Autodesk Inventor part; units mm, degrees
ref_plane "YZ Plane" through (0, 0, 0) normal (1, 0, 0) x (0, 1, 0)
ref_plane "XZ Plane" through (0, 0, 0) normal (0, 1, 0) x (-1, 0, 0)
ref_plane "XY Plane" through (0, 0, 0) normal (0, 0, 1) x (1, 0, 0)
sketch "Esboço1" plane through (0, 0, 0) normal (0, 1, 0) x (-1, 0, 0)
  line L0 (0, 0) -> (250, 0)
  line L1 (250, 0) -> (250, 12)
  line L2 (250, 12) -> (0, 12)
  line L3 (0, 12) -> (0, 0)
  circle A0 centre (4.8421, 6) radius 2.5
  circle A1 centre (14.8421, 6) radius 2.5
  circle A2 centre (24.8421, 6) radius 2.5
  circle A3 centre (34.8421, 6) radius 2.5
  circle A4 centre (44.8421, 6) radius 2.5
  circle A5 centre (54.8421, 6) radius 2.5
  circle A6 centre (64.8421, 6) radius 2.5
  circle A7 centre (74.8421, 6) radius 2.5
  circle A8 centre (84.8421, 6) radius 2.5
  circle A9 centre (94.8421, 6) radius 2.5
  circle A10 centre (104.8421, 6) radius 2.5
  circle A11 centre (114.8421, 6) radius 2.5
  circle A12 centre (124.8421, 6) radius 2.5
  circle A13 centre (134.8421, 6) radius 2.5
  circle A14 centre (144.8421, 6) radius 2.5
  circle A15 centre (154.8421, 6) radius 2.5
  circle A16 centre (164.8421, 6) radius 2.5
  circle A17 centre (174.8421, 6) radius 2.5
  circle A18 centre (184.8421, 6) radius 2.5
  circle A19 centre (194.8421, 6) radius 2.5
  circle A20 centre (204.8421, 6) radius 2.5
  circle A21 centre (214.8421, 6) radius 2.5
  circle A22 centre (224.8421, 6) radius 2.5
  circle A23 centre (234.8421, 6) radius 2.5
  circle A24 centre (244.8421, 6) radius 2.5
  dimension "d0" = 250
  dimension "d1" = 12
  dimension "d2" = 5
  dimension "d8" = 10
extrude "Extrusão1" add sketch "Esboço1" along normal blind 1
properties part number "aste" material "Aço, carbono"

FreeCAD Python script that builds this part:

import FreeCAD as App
import Part
import Sketcher

doc = App.newDocument("Part")
params = doc.addObject("Spreadsheet::Sheet", "Params")
for row, (alias, value) in enumerate([
    ("sketch1_diameter", "5 mm"),
    ("sketch1_width", "250 mm"),
    ("sketch1_height", "12 mm"),
    ("pad1_length", "1 mm"),
], start=1):
    params.set(f"A{row}", alias)
    params.set(f"B{row}", "=" + value)
    params.setAlias(f"B{row}", alias)

body = doc.addObject("PartDesign::Body", "Body")

# Sketch on XZ plane
sketch1 = doc.addObject("Sketcher::SketchObject", "Sketch")
body.addObject(sketch1)
sketch1.AttachmentSupport = (doc.XZ_Plane, [""])
sketch1.MapMode = "FlatFace"
sketch1.addGeometry(Part.LineSegment(App.Vector(0, 12, 0), App.Vector(0, 0, 0)), False)
sketch1.addGeometry(Part.LineSegment(App.Vector(0, 0, 0), App.Vector(-250, 0, 0)), False)
sketch1.addGeometry(Part.LineSegment(App.Vector(-250, 0, 0), App.Vector(-250, 12, 0)), False)
sketch1.addGeometry(Part.LineSegment(App.Vector(-250, 12, 0), App.Vector(0, 12, 0)), False)
sketch1.addGeometry(Part.Circle(App.Vector(-4.8, 6, 0), App.Vector(0, 0, 1), 2.5), False)
sketch1.addGeometry(Part.Circle(App.Vector(-14.8, 6, 0), App.Vector(0, 0, 1), 2.5), False)
sketch1.addGeometry(Part.Circle(App.Vector(-24.8, 6, 0), App.Vector(0, 0, 1), 2.5), False)
sketch1.addGeometry(Part.Circle(App.Vector(-34.8, 6, 0), App.Vector(0, 0, 1), 2.5), False)
sketch1.addGeometry(Part.Circle(App.Vector(-44.8, 6, 0), App.Vector(0, 0, 1), 2.5), False)
sketch1.addGeometry(Part.Circle(App.Vector(-54.8, 6, 0), App.Vector(0, 0, 1), 2.5), False)
sketch1.addGeometry(Part.Circle(App.Vector(-64.8, 6, 0), App.Vector(0, 0, 1), 2.5), False)
sketch1.addGeometry(Part.Circle(App.Vector(-74.8, 6, 0), App.Vector(0, 0, 1), 2.5), False)
sketch1.addGeometry(Part.Circle(App.Vector(-84.8, 6, 0), App.Vector(0, 0, 1), 2.5), False)
sketch1.addGeometry(Part.Circle(App.Vector(-94.8, 6, 0), App.Vector(0, 0, 1), 2.5), False)
sketch1.addGeometry(Part.Circle(App.Vector(-104.8, 6, 0), App.Vector(0, 0, 1), 2.5), False)
sketch1.addGeometry(Part.Circle(App.Vector(-114.8, 6, 0), App.Vector(0, 0, 1), 2.5), False)
sketch1.addGeometry(Part.Circle(App.Vector(-124.8, 6, 0), App.Vector(0, 0, 1), 2.5), False)
sketch1.addGeometry(Part.Circle(App.Vector(-134.8, 6, 0), App.Vector(0, 0, 1), 2.5), False)
sketch1.addGeometry(Part.Circle(App.Vector(-144.8, 6, 0), App.Vector(0, 0, 1), 2.5), False)
sketch1.addGeometry(Part.Circle(App.Vector(-154.8, 6, 0), App.Vector(0, 0, 1), 2.5), False)
sketch1.addGeometry(Part.Circle(App.Vector(-164.8, 6, 0), App.Vector(0, 0, 1), 2.5), False)
sketch1.addGeometry(Part.Circle(App.Vector(-174.8, 6, 0), App.Vector(0, 0, 1), 2.5), False)
sketch1.addGeometry(Part.Circle(App.Vector(-184.8, 6, 0), App.Vector(0, 0, 1), 2.5), False)
sketch1.addGeometry(Part.Circle(App.Vector(-194.8, 6, 0), App.Vector(0, 0, 1), 2.5), False)
sketch1.addGeometry(Part.Circle(App.Vector(-204.8, 6, 0), App.Vector(0, 0, 1), 2.5), False)
sketch1.addGeometry(Part.Circle(App.Vector(-214.8, 6, 0), App.Vector(0, 0, 1), 2.5), False)
sketch1.addGeometry(Part.Circle(App.Vector(-224.8, 6, 0), App.Vector(0, 0, 1), 2.5), False)
sketch1.addGeometry(Part.Circle(App.Vector(-234.8, 6, 0), App.Vector(0, 0, 1), 2.5), False)
sketch1.addGeometry(Part.Circle(App.Vector(-244.8, 6, 0), App.Vector(0, 0, 1), 2.5), False)
sketch1.addConstraint(Sketcher.Constraint("Coincident", 0, 2, 1, 1))
sketch1.addConstraint(Sketcher.Constraint("Coincident", 1, 2, 2, 1))
sketch1.addConstraint(Sketcher.Constraint("Coincident", 2, 2, 3, 1))
sketch1.addConstraint(Sketcher.Constraint("Coincident", 3, 2, 0, 1))
sketch1.addConstraint(Sketcher.Constraint("Vertical", 0))
sketch1.addConstraint(Sketcher.Constraint("Horizontal", 1))
sketch1.addConstraint(Sketcher.Constraint("Vertical", 2))
sketch1.addConstraint(Sketcher.Constraint("Horizontal", 3))
sketch1.addConstraint(Sketcher.Constraint("Coincident", 0, 2, -1, 1))
sketch1.addConstraint(Sketcher.Constraint("Equal", 4, 5))
sketch1.addConstraint(Sketcher.Constraint("Equal", 5, 6))
sketch1.addConstraint(Sketcher.Constraint("Equal", 6, 7))
sketch1.addConstraint(Sketcher.Constraint("Equal", 7, 8))
sketch1.addConstraint(Sketcher.Constraint("Equal", 8, 9))
sketch1.addConstraint(Sketcher.Constraint("Equal", 9, 10))
sketch1.addConstraint(Sketcher.Constraint("Equal", 10, 11))
sketch1.addConstraint(Sketcher.Constraint("Equal", 11, 12))
sketch1.addConstraint(Sketcher.Constraint("Equal", 12, 13))
sketch1.addConstraint(Sketcher.Constraint("Equal", 13, 14))
sketch1.addConstraint(Sketcher.Constraint("Equal", 14, 15))
sketch1.addConstraint(Sketcher.Constraint("Equal", 15, 16))
sketch1.addConstraint(Sketcher.Constraint("Equal", 16, 17))
sketch1.addConstraint(Sketcher.Constraint("Equal", 17, 18))
sketch1.addConstraint(Sketcher.Constraint("Equal", 18, 19))
sketch1.addConstraint(Sketcher.Constraint("Equal", 19, 20))
sketch1.addConstraint(Sketcher.Constraint("Equal", 20, 21))
sketch1.addConstraint(Sketcher.Constraint("Equal", 21, 22))
sketch1.addConstraint(Sketcher.Constraint("Equal", 22, 23))
sketch1.addConstraint(Sketcher.Constraint("Equal", 23, 24))
sketch1.addConstraint(Sketcher.Constraint("Equal", 24, 25))
sketch1.addConstraint(Sketcher.Constraint("Equal", 25, 26))
sketch1.addConstraint(Sketcher.Constraint("Equal", 26, 27))
sketch1.addConstraint(Sketcher.Constraint("Equal", 27, 28))
sketch1.addConstraint(Sketcher.Constraint("Horizontal", 4, 3, 5, 3))
sketch1.addConstraint(Sketcher.Constraint("Horizontal", 5, 3, 6, 3))
sketch1.addConstraint(Sketcher.Constraint("Horizontal", 6, 3, 7, 3))
sketch1.addConstraint(Sketcher.Constraint("Horizontal", 7, 3, 8, 3))
sketch1.addConstraint(Sketcher.Constraint("Horizontal", 8, 3, 9, 3))
sketch1.addConstraint(Sketcher.Constraint("Horizontal", 9, 3, 10, 3))
sketch1.addConstraint(Sketcher.Constraint("Horizontal", 10, 3, 11, 3))
sketch1.addConstraint(Sketcher.Constraint("Horizontal", 11, 3, 12, 3))
sketch1.addConstraint(Sketcher.Constraint("Horizontal", 12, 3, 13, 3))
sketch1.addConstraint(Sketcher.Constraint("Horizontal", 13, 3, 14, 3))
sketch1.addConstraint(Sketcher.Constraint("Horizontal", 14, 3, 15, 3))
sketch1.addConstraint(Sketcher.Constraint("Horizontal", 15, 3, 16, 3))
sketch1.addConstraint(Sketcher.Constraint("Horizontal", 16, 3, 17, 3))
sketch1.addConstraint(Sketcher.Constraint("Horizontal", 17, 3, 18, 3))
sketch1.addConstraint(Sketcher.Constraint("Horizontal", 18, 3, 19, 3))
sketch1.addConstraint(Sketcher.Constraint("Horizontal", 19, 3, 20, 3))
sketch1.addConstraint(Sketcher.Constraint("Horizontal", 20, 3, 21, 3))
sketch1.addConstraint(Sketcher.Constraint("Horizontal", 21, 3, 22, 3))
sketch1.addConstraint(Sketcher.Constraint("Horizontal", 22, 3, 23, 3))
sketch1.addConstraint(Sketcher.Constraint("Horizontal", 23, 3, 24, 3))
sketch1.addConstraint(Sketcher.Constraint("Horizontal", 24, 3, 25, 3))
sketch1.addConstraint(Sketcher.Constraint("Horizontal", 25, 3, 26, 3))
sketch1.addConstraint(Sketcher.Constraint("Horizontal", 26, 3, 27, 3))
sketch1.addConstraint(Sketcher.Constraint("Horizontal", 27, 3, 28, 3))
sketch1.addConstraint(Sketcher.Constraint("Diameter", 4, 5.0))
sketch1.addConstraint(Sketcher.Constraint("DistanceX", 1, 2, 1, 1, 250.0))
sketch1.addConstraint(Sketcher.Constraint("DistanceY", 0, 2, 0, 1, 12.0))
sketch1.addConstraint(Sketcher.Constraint("DistanceX", 5, 3, 4, 3, 10.0))
sketch1.addConstraint(Sketcher.Constraint("DistanceX", 6, 3, 5, 3, 10.0))
sketch1.addConstraint(Sketcher.Constraint("DistanceX", 7, 3, 6, 3, 10.0))
sketch1.addConstraint(Sketcher.Constraint("DistanceX", 8, 3, 7, 3, 10.0))
sketch1.addConstraint(Sketcher.Constraint("DistanceX", 9, 3, 8, 3, 10.0))
sketch1.addConstraint(Sketcher.Constraint("DistanceX", 10, 3, 9, 3, 10.0))
sketch1.addConstraint(Sketcher.Constraint("DistanceX", 11, 3, 10, 3, 10.0))
sketch1.addConstraint(Sketcher.Constraint("DistanceX", 12, 3, 11, 3, 10.0))
sketch1.addConstraint(Sketcher.Constraint("DistanceX", 13, 3, 12, 3, 10.0))
sketch1.addConstraint(Sketcher.Constraint("DistanceX", 14, 3, 13, 3, 10.0))
sketch1.addConstraint(Sketcher.Constraint("DistanceX", 15, 3, 14, 3, 10.0))
sketch1.addConstraint(Sketcher.Constraint("DistanceX", 16, 3, 15, 3, 10.0))
sketch1.addConstraint(Sketcher.Constraint("DistanceX", 17, 3, 16, 3, 10.0))
sketch1.addConstraint(Sketcher.Constraint("DistanceX", 18, 3, 17, 3, 10.0))
sketch1.addConstraint(Sketcher.Constraint("DistanceX", 19, 3, 18, 3, 10.0))
sketch1.addConstraint(Sketcher.Constraint("DistanceX", 20, 3, 19, 3, 10.0))
sketch1.addConstraint(Sketcher.Constraint("DistanceX", 21, 3, 20, 3, 10.0))
sketch1.addConstraint(Sketcher.Constraint("DistanceX", 22, 3, 21, 3, 10.0))
sketch1.addConstraint(Sketcher.Constraint("DistanceX", 23, 3, 22, 3, 10.0))
sketch1.addConstraint(Sketcher.Constraint("DistanceX", 24, 3, 23, 3, 10.0))
sketch1.addConstraint(Sketcher.Constraint("DistanceX", 25, 3, 24, 3, 10.0))
sketch1.addConstraint(Sketcher.Constraint("DistanceX", 26, 3, 25, 3, 10.0))
sketch1.addConstraint(Sketcher.Constraint("DistanceX", 27, 3, 26, 3, 10.0))
sketch1.addConstraint(Sketcher.Constraint("DistanceX", 28, 3, 27, 3, 10.0))
sketch1.addConstraint(Sketcher.Constraint("DistanceY", -1, 1, 4, 3, 6.0))
sketch1.addConstraint(Sketcher.Constraint("DistanceX", 4, 3, -1, 1, 4.842))
sketch1.setExpression("Constraints[57]", "Params.sketch1_diameter")
sketch1.setExpression("Constraints[58]", "Params.sketch1_width")
sketch1.setExpression("Constraints[59]", "Params.sketch1_height")
pad1 = doc.addObject("PartDesign::Pad", "Pad")
body.addObject(pad1)
pad1.Profile = sketch1
pad1.setExpression("Length", "Params.pad1_length")
pad1.Reversed = True

doc.recompute()
